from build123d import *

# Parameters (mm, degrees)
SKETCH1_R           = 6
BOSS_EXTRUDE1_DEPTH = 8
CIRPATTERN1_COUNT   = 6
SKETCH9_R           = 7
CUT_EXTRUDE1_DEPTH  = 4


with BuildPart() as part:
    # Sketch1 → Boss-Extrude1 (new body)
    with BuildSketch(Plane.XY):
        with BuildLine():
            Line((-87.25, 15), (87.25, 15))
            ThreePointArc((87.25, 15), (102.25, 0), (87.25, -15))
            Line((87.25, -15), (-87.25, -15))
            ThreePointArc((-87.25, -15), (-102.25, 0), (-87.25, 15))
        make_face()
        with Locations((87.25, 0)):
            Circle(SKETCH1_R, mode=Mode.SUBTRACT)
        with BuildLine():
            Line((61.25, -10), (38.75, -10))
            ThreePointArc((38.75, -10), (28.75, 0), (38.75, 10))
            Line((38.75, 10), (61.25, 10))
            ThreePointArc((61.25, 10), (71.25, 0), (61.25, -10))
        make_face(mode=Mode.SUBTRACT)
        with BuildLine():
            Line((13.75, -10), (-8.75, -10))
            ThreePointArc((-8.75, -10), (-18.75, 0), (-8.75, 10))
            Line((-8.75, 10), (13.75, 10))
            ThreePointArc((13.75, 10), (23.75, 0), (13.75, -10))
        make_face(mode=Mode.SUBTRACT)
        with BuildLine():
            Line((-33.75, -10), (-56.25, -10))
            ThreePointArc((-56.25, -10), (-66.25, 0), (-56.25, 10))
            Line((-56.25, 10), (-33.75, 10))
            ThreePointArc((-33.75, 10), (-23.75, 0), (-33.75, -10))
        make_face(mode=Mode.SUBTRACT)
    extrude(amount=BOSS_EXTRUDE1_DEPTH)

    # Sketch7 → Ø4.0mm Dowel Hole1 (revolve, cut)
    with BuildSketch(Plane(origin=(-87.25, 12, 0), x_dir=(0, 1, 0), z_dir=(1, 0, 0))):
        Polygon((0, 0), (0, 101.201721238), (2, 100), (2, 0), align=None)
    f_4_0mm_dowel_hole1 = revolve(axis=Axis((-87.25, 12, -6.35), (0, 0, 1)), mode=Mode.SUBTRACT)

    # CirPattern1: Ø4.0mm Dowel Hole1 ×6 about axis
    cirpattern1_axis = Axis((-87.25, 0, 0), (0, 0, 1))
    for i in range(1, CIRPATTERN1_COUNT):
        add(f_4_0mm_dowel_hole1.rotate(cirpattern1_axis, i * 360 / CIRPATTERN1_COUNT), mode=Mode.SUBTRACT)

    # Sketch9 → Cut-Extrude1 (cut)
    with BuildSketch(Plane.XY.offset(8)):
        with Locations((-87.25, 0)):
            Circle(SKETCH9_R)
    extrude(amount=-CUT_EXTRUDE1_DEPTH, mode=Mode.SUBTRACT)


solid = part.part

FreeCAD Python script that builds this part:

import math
import FreeCAD as App
import Part
import Sketcher
Q = App.Units.Quantity


def add_polygon(sketch, points):
    """Adds a closed chain of lines whose ends are joined by coincident constraints."""
    first, n = sketch.GeometryCount, len(points)
    for a, b in zip(points, points[1:] + points[:1]):
        sketch.addGeometry(Part.LineSegment(App.Vector(*a, 0), App.Vector(*b, 0)), False)
    for i in range(n):
        sketch.addConstraint(Sketcher.Constraint("Coincident", first + i, 2, first + (i + 1) % n, 1))

doc = App.newDocument("Part")
body = doc.addObject("PartDesign::Body", "Body")

sketch1 = body.newObject("Sketcher::SketchObject", "Sketch")
sketch1.AttachmentSupport = (doc.getObject("XY_Plane"), [""])
sketch1.MapMode = "FlatFace"
sketch1.addGeometry([
    Part.LineSegment(App.Vector(87, 15, 0), App.Vector(-87, 15, 0)),
    Part.ArcOfCircle(Part.Circle(App.Vector(-87, 0, 0), App.Vector(0, 0, 1), 15), math.radians(90), math.radians(270)),
    Part.LineSegment(App.Vector(-87, -15, 0), App.Vector(87, -15, 0)),
    Part.ArcOfCircle(Part.Circle(App.Vector(87, 0, 0), App.Vector(0, 0, 1), 15), math.radians(-90), math.radians(90)),
    Part.Circle(App.Vector(87, 0, 0), App.Vector(0, 0, 1), 6),
    Part.LineSegment(App.Vector(61, -10, 0), App.Vector(39, -10, 0)),
    Part.ArcOfCircle(Part.Circle(App.Vector(39, 0, 0), App.Vector(0, 0, 1), 10), math.radians(90), math.radians(270)),
    Part.LineSegment(App.Vector(39, 10, 0), App.Vector(61, 10, 0)),
    Part.ArcOfCircle(Part.Circle(App.Vector(61, 0, 0), App.Vector(0, 0, 1), 10), math.radians(-90), math.radians(90)),
    Part.LineSegment(App.Vector(14, -10, 0), App.Vector(-9, -10, 0)),
    Part.ArcOfCircle(Part.Circle(App.Vector(-9, 0, 0), App.Vector(0, 0, 1), 10), math.radians(90), math.radians(270)),
    Part.LineSegment(App.Vector(-9, 10, 0), App.Vector(14, 10, 0)),
    Part.ArcOfCircle(Part.Circle(App.Vector(14, 0, 0), App.Vector(0, 0, 1), 10), math.radians(-90), math.radians(90)),
    Part.LineSegment(App.Vector(-34, -10, 0), App.Vector(-56, -10, 0)),
    Part.ArcOfCircle(Part.Circle(App.Vector(-56, 0, 0), App.Vector(0, 0, 1), 10), math.radians(90), math.radians(270)),
    Part.LineSegment(App.Vector(-56, 10, 0), App.Vector(-34, 10, 0)),
    Part.ArcOfCircle(Part.Circle(App.Vector(-34, 0, 0), App.Vector(0, 0, 1), 10), math.radians(-90), math.radians(90)),
], False)
sketch1.addConstraint([
    Sketcher.Constraint("Tangent", 0, 2, 1, 1),
    Sketcher.Constraint("Tangent", 1, 2, 2, 1),
    Sketcher.Constraint("Tangent", 2, 2, 3, 1),
    Sketcher.Constraint("Tangent", 3, 2, 0, 1),
    Sketcher.Constraint("Tangent", 5, 2, 6, 2),
    Sketcher.Constraint("Tangent", 6, 1, 7, 1),
    Sketcher.Constraint("Tangent", 7, 2, 8, 2),
    Sketcher.Constraint("Tangent", 8, 1, 5, 1),
    Sketcher.Constraint("Tangent", 9, 2, 10, 2),
    Sketcher.Constraint("Tangent", 10, 1, 11, 1),
    Sketcher.Constraint("Tangent", 11, 2, 12, 2),
    Sketcher.Constraint("Tangent", 12, 1, 9, 1),
    Sketcher.Constraint("Tangent", 13, 2, 14, 2),
    Sketcher.Constraint("Tangent", 14, 1, 15, 1),
    Sketcher.Constraint("Tangent", 15, 2, 16, 2),
    Sketcher.Constraint("Tangent", 16, 1, 13, 1),
    Sketcher.Constraint("Horizontal", 0),
    Sketcher.Constraint("Horizontal", 2),
    Sketcher.Constraint("Horizontal", 5),
    Sketcher.Constraint("Horizontal", 7),
    Sketcher.Constraint("Horizontal", 9),
    Sketcher.Constraint("Horizontal", 11),
    Sketcher.Constraint("Horizontal", 13),
    Sketcher.Constraint("Horizontal", 15),
    Sketcher.Constraint("Coincident", 4, 3, 3, 3),
    Sketcher.Constraint("Equal", 8, 10),
    Sketcher.Constraint("Equal", 12, 14),
    Sketcher.Constraint("Symmetric", 1, 3, 3, 3, -1, 1),
    Sketcher.Constraint("PointOnObject", 6, 3, -1),
    Sketcher.Constraint("PointOnObject", 10, 3, -1),
    Sketcher.Constraint("PointOnObject", 14, 3, -1),
    Sketcher.Constraint("Equal", 7, 9),
    Sketcher.Constraint("Equal", 11, 13),
    Sketcher.Constraint("Diameter", 4, Q("12 mm")),
    Sketcher.Constraint("Radius", 1, Q("15 mm")),
    Sketcher.Constraint("Radius", 6, Q("10 mm")),
    Sketcher.Constraint("DistanceX", 0, 2, 0, 1, Q("174.5 mm")),
    Sketcher.Constraint("DistanceX", 5, 2, 5, 1, Q("22.5 mm")),
    Sketcher.Constraint("DistanceX", 1, 3, 6, 3, Q("126 mm")),
    Sketcher.Constraint("DistanceX", 10, 3, 8, 3, Q("70 mm")),
    Sketcher.Constraint("DistanceX", 1, 3, 14, 3, Q("31 mm")),
])
pad1 = body.newObject("PartDesign::Pad", "Pad")
pad1.Profile = sketch1
pad1.Length = 8

sketch2 = body.newObject("Sketcher::SketchObject", "Sketch001")
sketch2.AttachmentSupport = (doc.getObject("YZ_Plane"), [""])
sketch2.MapMode = "FlatFace"
sketch2.AttachmentOffset = App.Placement(App.Vector(0, 0, -87.25), App.Rotation())
add_polygon(sketch2, [(12, 101.2), (12, 0), (14, 0), (14, 100)])
sketch2.addGeometry(Part.LineSegment(App.Vector(12, 0, 0), App.Vector(12, 101.2, 0)), True)
sketch2.addConstraint([
    Sketcher.Constraint("Vertical", 0),
    Sketcher.Constraint("Horizontal", 1),
    Sketcher.Constraint("Vertical", 2),
    Sketcher.Constraint("Vertical", 4),
    Sketcher.Constraint("Coincident", 4, 1, 0, 2),
    Sketcher.Constraint("PointOnObject", 0, 2, -1),
    Sketcher.Constraint("Equal", 0, 4),
    Sketcher.Constraint("DistanceX", 1, 1, 1, 2, Q("2 mm")),
    Sketcher.Constraint("DistanceY", 2, 1, 2, 2, Q("100 mm")),
    Sketcher.Constraint("Angle", 3, Q("149 deg")),
    Sketcher.Constraint("DistanceX", -1, 1, 0, 2, Q("12 mm")),
])
groove = body.newObject("PartDesign::Groove", "Groove")
groove.Profile = sketch2
groove.ReferenceAxis = (sketch2, ["Axis0"])
groove.Angle = 360
doc.recompute()

datumline = body.newObject("PartDesign::Line", "DatumLine")
datumline.Placement = App.Placement(App.Vector(-87.25, 0, 0), App.Rotation(App.Vector(0, 0, 1), App.Vector(0, 0, 1)))
polarpattern = body.newObject("PartDesign::PolarPattern", "PolarPattern")
polarpattern.Originals = [groove]
polarpattern.Axis = (datumline, [""])
polarpattern.Angle = 360
polarpattern.Occurrences = 6
body.Tip = polarpattern

sketch3 = body.newObject("Sketcher::SketchObject", "Sketch002")
sketch3.AttachmentSupport = (doc.getObject("XY_Plane"), [""])
sketch3.MapMode = "FlatFace"
sketch3.AttachmentOffset = App.Placement(App.Vector(0, 0, 8), App.Rotation())
sketch3.addGeometry(Part.Circle(App.Vector(-87, 0, 0), App.Vector(0, 0, 1), 7), False)
sketch3.addConstraint([
    Sketcher.Constraint("PointOnObject", 0, 3, -1),
    Sketcher.Constraint("Diameter", 0, Q("14 mm")),
    Sketcher.Constraint("DistanceX", 0, 3, -1, 1, Q("87.25 mm")),
])
pocket1 = body.newObject("PartDesign::Pocket", "Pocket")
pocket1.Profile = sketch3
pocket1.Length = 4

doc.recompute()
